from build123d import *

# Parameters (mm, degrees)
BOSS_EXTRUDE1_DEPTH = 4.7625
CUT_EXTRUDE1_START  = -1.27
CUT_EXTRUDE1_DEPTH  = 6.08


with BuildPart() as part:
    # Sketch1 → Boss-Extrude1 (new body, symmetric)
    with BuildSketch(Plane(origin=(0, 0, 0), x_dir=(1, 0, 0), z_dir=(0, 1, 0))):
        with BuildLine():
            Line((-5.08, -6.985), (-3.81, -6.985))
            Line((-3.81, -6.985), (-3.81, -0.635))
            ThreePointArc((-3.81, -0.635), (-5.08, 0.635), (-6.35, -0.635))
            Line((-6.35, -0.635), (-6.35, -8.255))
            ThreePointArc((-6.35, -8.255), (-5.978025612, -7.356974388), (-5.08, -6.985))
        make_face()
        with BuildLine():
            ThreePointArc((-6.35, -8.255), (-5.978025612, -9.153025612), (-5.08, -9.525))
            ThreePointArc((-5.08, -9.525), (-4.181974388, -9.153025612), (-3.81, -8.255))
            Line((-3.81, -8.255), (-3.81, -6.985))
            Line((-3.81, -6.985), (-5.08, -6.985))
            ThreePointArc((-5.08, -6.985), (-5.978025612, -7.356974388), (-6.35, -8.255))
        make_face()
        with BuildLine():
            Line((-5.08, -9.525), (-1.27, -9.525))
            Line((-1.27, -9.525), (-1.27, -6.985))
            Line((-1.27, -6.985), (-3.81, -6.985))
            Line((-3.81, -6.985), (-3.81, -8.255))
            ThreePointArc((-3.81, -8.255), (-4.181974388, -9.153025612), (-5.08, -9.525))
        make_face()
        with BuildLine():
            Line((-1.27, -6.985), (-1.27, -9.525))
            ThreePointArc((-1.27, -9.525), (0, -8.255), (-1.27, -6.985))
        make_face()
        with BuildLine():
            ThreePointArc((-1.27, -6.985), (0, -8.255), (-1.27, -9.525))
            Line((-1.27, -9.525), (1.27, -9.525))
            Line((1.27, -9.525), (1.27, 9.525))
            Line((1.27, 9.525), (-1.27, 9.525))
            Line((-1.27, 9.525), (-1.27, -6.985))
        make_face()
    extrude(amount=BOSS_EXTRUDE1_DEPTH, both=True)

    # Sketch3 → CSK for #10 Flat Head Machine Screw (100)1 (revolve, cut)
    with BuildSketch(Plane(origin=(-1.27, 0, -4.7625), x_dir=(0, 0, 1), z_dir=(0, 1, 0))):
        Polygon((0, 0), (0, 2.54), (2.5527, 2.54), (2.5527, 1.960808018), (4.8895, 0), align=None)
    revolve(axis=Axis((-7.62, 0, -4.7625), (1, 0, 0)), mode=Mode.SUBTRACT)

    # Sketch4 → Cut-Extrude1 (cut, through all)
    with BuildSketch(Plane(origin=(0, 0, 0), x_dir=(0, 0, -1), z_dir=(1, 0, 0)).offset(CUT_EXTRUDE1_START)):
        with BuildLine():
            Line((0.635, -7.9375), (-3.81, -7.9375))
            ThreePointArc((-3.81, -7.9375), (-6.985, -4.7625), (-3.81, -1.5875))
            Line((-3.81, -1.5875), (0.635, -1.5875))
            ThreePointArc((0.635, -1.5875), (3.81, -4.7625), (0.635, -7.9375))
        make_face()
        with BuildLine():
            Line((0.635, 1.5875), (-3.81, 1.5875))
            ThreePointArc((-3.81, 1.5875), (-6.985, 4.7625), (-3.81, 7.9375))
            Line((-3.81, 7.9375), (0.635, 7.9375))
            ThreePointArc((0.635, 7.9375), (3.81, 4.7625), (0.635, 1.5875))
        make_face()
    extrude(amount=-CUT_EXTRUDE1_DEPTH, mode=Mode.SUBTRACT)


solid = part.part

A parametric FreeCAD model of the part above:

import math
import FreeCAD as App
import Part
import Sketcher

V = App.Vector
Q = App.Units.Quantity

doc = App.newDocument("Part")
body = doc.addObject("PartDesign::Body", "Body")

# Sketch on XZ plane
sketch1 = doc.addObject("Sketcher::SketchObject", "Sketch")
body.addObject(sketch1)
sketch1.AttachmentSupport = (doc.XZ_Plane, [""])
sketch1.MapMode = "FlatFace"
sketch1.addGeometry([
    Part.ArcOfCircle(Part.Circle(V(-5.1, 0.6, 0), V(0, 0, 1), 1.3), math.radians(180), math.radians(360)),  # 0
    Part.LineSegment(V(-6.3, 0.6, 0), V(-6.3, 8.3, 0)),  # 1
    Part.ArcOfCircle(Part.Circle(V(-5.1, 8.3, 0), V(0, 0, 1), 1.3), math.radians(90), math.radians(180)),  # 2
    Part.LineSegment(V(-5.1, 9.5, 0), V(1.3, 9.5, 0)),  # 3
    Part.LineSegment(V(1.3, 9.5, 0), V(1.3, -9.5, 0)),  # 4
    Part.LineSegment(V(1.3, -9.5, 0), V(-1.3, -9.5, 0)),  # 5
    Part.LineSegment(V(-1.3, -9.5, 0), V(-1.3, 7, 0)),  # 6
    Part.LineSegment(V(-1.3, 7, 0), V(-3.8, 7, 0)),  # 7
    Part.LineSegment(V(-3.8, 7, 0), V(-3.8, 0.6, 0)),  # 8
], False)
sketch1.addConstraint([
    Sketcher.Constraint("Tangent", 0, 1, 1, 1),
    Sketcher.Constraint("Tangent", 1, 2, 2, 2),
    Sketcher.Constraint("Tangent", 2, 1, 3, 1),
    Sketcher.Constraint("Coincident", 3, 2, 4, 1),
    Sketcher.Constraint("Coincident", 4, 2, 5, 1),
    Sketcher.Constraint("Coincident", 5, 2, 6, 1),
    Sketcher.Constraint("Coincident", 6, 2, 7, 1),
    Sketcher.Constraint("Coincident", 7, 2, 8, 1),
    Sketcher.Constraint("Tangent", 8, 2, 0, 2),
    Sketcher.Constraint("Vertical", 1),
    Sketcher.Constraint("Horizontal", 3),
    Sketcher.Constraint("Vertical", 4),
    Sketcher.Constraint("Horizontal", 5),
    Sketcher.Constraint("Vertical", 6),
    Sketcher.Constraint("Horizontal", 7),
    Sketcher.Constraint("Vertical", 8),
    Sketcher.Constraint("Equal", 0, 2),
    Sketcher.Constraint("Symmetric", 3, 2, 5, 2, -1, 1),
    Sketcher.Constraint("Equal", 5, 7),
    Sketcher.Constraint("Equal", 3, 8),
    Sketcher.Constraint("Radius", 0, Q("0.05 in")),
    Sketcher.Constraint("DistanceX", 5, 2, 5, 1, Q("0.1 in")),
    Sketcher.Constraint("DistanceY", 1, 1, 1, 2, Q("0.3 in")),
    Sketcher.Constraint("DistanceY", 4, 2, 4, 1, Q("0.75 in")),
])
pad1 = doc.addObject("PartDesign::Pad", "Pad")
body.addObject(pad1)
pad1.Profile = sketch1
pad1.Length = Q("0.375 in")
pad1.Midplane = True

# Sketch on XZ plane
sketch2 = doc.addObject("Sketcher::SketchObject", "Sketch001")
body.addObject(sketch2)
sketch2.AttachmentSupport = (doc.XZ_Plane, [""])
sketch2.MapMode = "FlatFace"
sketch2.addGeometry([
    Part.LineSegment(V(1.3, -4.8, 0), V(-1.3, -4.8, 0)),  # 0
    Part.LineSegment(V(-1.3, -4.8, 0), V(-1.3, 0.1, 0)),  # 1
    Part.LineSegment(V(-1.3, 0.1, 0), V(0.7, -2.2, 0)),  # 2
    Part.LineSegment(V(0.7, -2.2, 0), V(1.3, -2.2, 0)),  # 3
    Part.LineSegment(V(1.3, -2.2, 0), V(1.3, -4.8, 0)),  # 4
], False)
sketch2.addGeometry(Part.LineSegment(V(-1.3, -4.8, 0), V(1.3, -4.8, 0)), True)  # axis
sketch2.addConstraint([
    Sketcher.Constraint("Coincident", 0, 2, 1, 1),
    Sketcher.Constraint("Coincident", 1, 2, 2, 1),
    Sketcher.Constraint("Coincident", 2, 2, 3, 1),
    Sketcher.Constraint("Coincident", 3, 2, 4, 1),
    Sketcher.Constraint("Coincident", 4, 2, 0, 1),
    Sketcher.Constraint("Horizontal", 0),
    Sketcher.Constraint("Vertical", 1),
    Sketcher.Constraint("Horizontal", 3),
    Sketcher.Constraint("Vertical", 4),
    Sketcher.Constraint("Horizontal", 5),
    Sketcher.Constraint("Coincident", 5, 1, 0, 2),
    Sketcher.Constraint("Vertical", 3, 2, 5, 2),
    Sketcher.Constraint("DistanceX", 0, 2, 0, 1, Q("0.1 in")),
    Sketcher.Constraint("Angle", 2, Q("-50 deg")),
    Sketcher.Constraint("DistanceX", 0, 2, -1, 1, Q("0.05 in")),
    Sketcher.Constraint("DistanceY", 1, 1, 1, 2, Q("0.1925 in")),
    Sketcher.Constraint("DistanceY", 4, 2, 4, 1, Q("0.1005 in")),
    Sketcher.Constraint("DistanceY", 0, 2, -1, 1, Q("0.1875 in")),
])
groove = doc.addObject("PartDesign::Groove", "Groove")
body.addObject(groove)
groove.Profile = sketch2
groove.ReferenceAxis = (sketch2, ["Axis0"])
groove.Angle = 360

# Sketch on YZ plane
sketch3 = doc.addObject("Sketcher::SketchObject", "Sketch002")
body.addObject(sketch3)
sketch3.AttachmentSupport = (doc.YZ_Plane, [""])
sketch3.MapMode = "FlatFace"
sketch3.AttachmentOffset = App.Placement(V(0, 0, -0.05 * 25.4), App.Rotation())
sketch3.addGeometry([
    Part.LineSegment(V(-7.9, 3.8, 0), V(-7.9, -0.6, 0)),  # 0
    Part.ArcOfCircle(Part.Circle(V(-4.8, -0.6, 0), V(0, 0, 1), 3.2), math.radians(180), math.radians(360)),  # 1
    Part.LineSegment(V(-1.6, -0.6, 0), V(-1.6, 3.8, 0)),  # 2
    Part.ArcOfCircle(Part.Circle(V(-4.8, 3.8, 0), V(0, 0, 1), 3.2), math.radians(0), math.radians(180)),  # 3
    Part.LineSegment(V(1.6, 3.8, 0), V(1.6, -0.6, 0)),  # 4
    Part.ArcOfCircle(Part.Circle(V(4.8, -0.6, 0), V(0, 0, 1), 3.2), math.radians(180), math.radians(360)),  # 5
    Part.LineSegment(V(7.9, -0.6, 0), V(7.9, 3.8, 0)),  # 6
    Part.ArcOfCircle(Part.Circle(V(4.8, 3.8, 0), V(0, 0, 1), 3.2), math.radians(0), math.radians(180)),  # 7
], False)
sketch3.addConstraint([
    Sketcher.Constraint("Tangent", 0, 2, 1, 1),
    Sketcher.Constraint("Tangent", 1, 2, 2, 1),
    Sketcher.Constraint("Tangent", 2, 2, 3, 1),
    Sketcher.Constraint("Tangent", 3, 2, 0, 1),
    Sketcher.Constraint("Tangent", 4, 2, 5, 1),
    Sketcher.Constraint("Tangent", 5, 2, 6, 1),
    Sketcher.Constraint("Tangent", 6, 2, 7, 1),
    Sketcher.Constraint("Tangent", 7, 2, 4, 1),
    Sketcher.Constraint("Vertical", 0),
    Sketcher.Constraint("Vertical", 2),
    Sketcher.Constraint("Vertical", 4),
    Sketcher.Constraint("Vertical", 6),
    Sketcher.Constraint("Equal", 3, 5),
    Sketcher.Constraint("Symmetric", 1, 3, 5, 3, -2),
    Sketcher.Constraint("Horizontal", 3, 3, 7, 3),
    Sketcher.Constraint("Radius", 1, Q("0.125 in")),
    Sketcher.Constraint("DistanceX", 0, 2, 5, 3, Q("0.5 in")),
    Sketcher.Constraint("DistanceY", 0, 2, 0, 1, Q("0.175 in")),
    Sketcher.Constraint("DistanceY", -1, 1, 3, 3, Q("0.15 in")),
])
pocket1 = doc.addObject("PartDesign::Pocket", "Pocket")
body.addObject(pocket1)
pocket1.Profile = sketch3
pocket1.Type = "ThroughAll"

doc.recompute()
